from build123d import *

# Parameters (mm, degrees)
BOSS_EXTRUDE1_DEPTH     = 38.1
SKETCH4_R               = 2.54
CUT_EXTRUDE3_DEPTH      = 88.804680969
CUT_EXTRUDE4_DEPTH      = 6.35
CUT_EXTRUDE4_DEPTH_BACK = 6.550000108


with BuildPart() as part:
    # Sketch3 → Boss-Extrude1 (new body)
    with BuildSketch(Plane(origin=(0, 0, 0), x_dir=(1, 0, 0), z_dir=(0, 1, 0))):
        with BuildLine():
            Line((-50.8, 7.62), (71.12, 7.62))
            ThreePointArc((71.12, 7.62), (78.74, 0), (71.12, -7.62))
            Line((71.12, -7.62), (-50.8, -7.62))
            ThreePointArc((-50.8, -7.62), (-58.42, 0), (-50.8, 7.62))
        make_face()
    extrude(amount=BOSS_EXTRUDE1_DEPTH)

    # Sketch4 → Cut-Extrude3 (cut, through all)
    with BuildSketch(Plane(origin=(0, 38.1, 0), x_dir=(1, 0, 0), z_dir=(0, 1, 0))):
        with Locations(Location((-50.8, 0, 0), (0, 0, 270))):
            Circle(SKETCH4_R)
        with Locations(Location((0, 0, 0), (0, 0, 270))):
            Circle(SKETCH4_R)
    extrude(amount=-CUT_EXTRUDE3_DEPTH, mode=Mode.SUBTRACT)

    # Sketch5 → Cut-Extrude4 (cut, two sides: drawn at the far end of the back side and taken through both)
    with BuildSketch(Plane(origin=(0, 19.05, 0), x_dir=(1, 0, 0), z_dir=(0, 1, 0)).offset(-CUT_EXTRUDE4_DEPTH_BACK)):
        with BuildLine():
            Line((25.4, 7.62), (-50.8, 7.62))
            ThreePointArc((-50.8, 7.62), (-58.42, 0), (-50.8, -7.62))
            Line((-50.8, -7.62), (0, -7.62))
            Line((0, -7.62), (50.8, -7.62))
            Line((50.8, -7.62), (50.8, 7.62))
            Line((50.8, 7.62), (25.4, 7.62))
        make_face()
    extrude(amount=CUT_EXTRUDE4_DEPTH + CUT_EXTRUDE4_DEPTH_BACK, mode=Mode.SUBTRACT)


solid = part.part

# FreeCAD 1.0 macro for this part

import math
import FreeCAD as App
import Part
import Sketcher
Q = App.Units.Quantity

doc = App.newDocument("Part")
body = doc.addObject("PartDesign::Body", "Body")

sketch1 = body.newObject("Sketcher::SketchObject", "Sketch")
sketch1.AttachmentSupport = (doc.getObject("XZ_Plane"), [""])
sketch1.MapMode = "FlatFace"
sketch1.addGeometry([
    Part.LineSegment(App.Vector(71, -8, 0), App.Vector(-51, -8, 0)),
    Part.ArcOfCircle(Part.Circle(App.Vector(-51, 0, 0), App.Vector(0, 0, 1), 8), math.radians(90), math.radians(270)),
    Part.LineSegment(App.Vector(-51, 8, 0), App.Vector(71, 8, 0)),
    Part.ArcOfCircle(Part.Circle(App.Vector(71, 0, 0), App.Vector(0, 0, 1), 8), math.radians(-90), math.radians(90)),
], False)
sketch1.addConstraint([
    Sketcher.Constraint("Tangent", 0, 2, 1, 2),
    Sketcher.Constraint("Tangent", 1, 1, 2, 1),
    Sketcher.Constraint("Tangent", 2, 2, 3, 2),
    Sketcher.Constraint("Tangent", 3, 1, 0, 1),
    Sketcher.Constraint("Horizontal", 0),
    Sketcher.Constraint("Horizontal", 2),
    Sketcher.Constraint("PointOnObject", 1, 3, -1),
    Sketcher.Constraint("Radius", 1, Q("0.3 in")),
    Sketcher.Constraint("DistanceX", 0, 2, 0, 1, Q("4.8 in")),
    Sketcher.Constraint("DistanceX", 1, 3, -1, 1, Q("2 in")),
])
pad1 = body.newObject("PartDesign::Pad", "Pad")
pad1.Profile = sketch1
pad1.Length = Q("1.5 in")
pad1.Reversed = True

sketch2 = body.newObject("Sketcher::SketchObject", "Sketch001")
sketch2.AttachmentSupport = (doc.getObject("XZ_Plane"), [""])
sketch2.MapMode = "FlatFace"
sketch2.AttachmentOffset = App.Placement(App.Vector(0, 0, -1.5 * 25.4), App.Rotation())
sketch2.addGeometry([
    Part.Circle(App.Vector(-50.8, 0, 0), App.Vector(0, 0, 1), 2.5),
    Part.Circle(App.Vector(0, 0, 0), App.Vector(0, 0, 1), 2.5),
], False)
sketch2.addConstraint([
    Sketcher.Constraint("Coincident", 1, 3, -1, 1),
    Sketcher.Constraint("Equal", 0, 1),
    Sketcher.Constraint("PointOnObject", 0, 3, -1),
    Sketcher.Constraint("Diameter", 0, Q("0.2 in")),
    Sketcher.Constraint("DistanceX", 0, 3, -1, 1, Q("2 in")),
])
pocket1 = body.newObject("PartDesign::Pocket", "Pocket")
pocket1.Profile = sketch2
pocket1.Type = "ThroughAll"
pocket1.Reversed = True

sketch3 = body.newObject("Sketcher::SketchObject", "Sketch002")
sketch3.AttachmentSupport = (doc.getObject("XZ_Plane"), [""])
sketch3.MapMode = "FlatFace"
sketch3.AttachmentOffset = App.Placement(App.Vector(0, 0, -0.75 * 25.4), App.Rotation())
sketch3.addGeometry([
    Part.ArcOfCircle(Part.Circle(App.Vector(-51, 0, 0), App.Vector(0, 0, 1), 8), math.radians(90), math.radians(270)),
    Part.LineSegment(App.Vector(-51, 8, 0), App.Vector(51, 8, 0)),
    Part.LineSegment(App.Vector(51, 8, 0), App.Vector(51, -8, 0)),
    Part.LineSegment(App.Vector(51, -8, 0), App.Vector(-51, -8, 0)),
], False)
sketch3.addConstraint([
    Sketcher.Constraint("Tangent", 0, 1, 1, 1),
    Sketcher.Constraint("Coincident", 1, 2, 2, 1),
    Sketcher.Constraint("Coincident", 2, 2, 3, 1),
    Sketcher.Constraint("Tangent", 3, 2, 0, 2),
    Sketcher.Constraint("Horizontal", 1),
    Sketcher.Constraint("Vertical", 2),
    Sketcher.Constraint("Horizontal", 3),
    Sketcher.Constraint("Symmetric", 0, 1, 2, 2, -1, 1),
    Sketcher.Constraint("Radius", 0, Q("0.3 in")),
    Sketcher.Constraint("DistanceX", 1, 1, 1, 2, Q("4 in")),
])
pocket2 = body.newObject("PartDesign::Pocket", "Pocket001")
pocket2.Profile = sketch3
pocket2.Type = "TwoLengths"
pocket2.Length = Q("0.25 in")
pocket2.Length2 = 6.55

doc.recompute()
